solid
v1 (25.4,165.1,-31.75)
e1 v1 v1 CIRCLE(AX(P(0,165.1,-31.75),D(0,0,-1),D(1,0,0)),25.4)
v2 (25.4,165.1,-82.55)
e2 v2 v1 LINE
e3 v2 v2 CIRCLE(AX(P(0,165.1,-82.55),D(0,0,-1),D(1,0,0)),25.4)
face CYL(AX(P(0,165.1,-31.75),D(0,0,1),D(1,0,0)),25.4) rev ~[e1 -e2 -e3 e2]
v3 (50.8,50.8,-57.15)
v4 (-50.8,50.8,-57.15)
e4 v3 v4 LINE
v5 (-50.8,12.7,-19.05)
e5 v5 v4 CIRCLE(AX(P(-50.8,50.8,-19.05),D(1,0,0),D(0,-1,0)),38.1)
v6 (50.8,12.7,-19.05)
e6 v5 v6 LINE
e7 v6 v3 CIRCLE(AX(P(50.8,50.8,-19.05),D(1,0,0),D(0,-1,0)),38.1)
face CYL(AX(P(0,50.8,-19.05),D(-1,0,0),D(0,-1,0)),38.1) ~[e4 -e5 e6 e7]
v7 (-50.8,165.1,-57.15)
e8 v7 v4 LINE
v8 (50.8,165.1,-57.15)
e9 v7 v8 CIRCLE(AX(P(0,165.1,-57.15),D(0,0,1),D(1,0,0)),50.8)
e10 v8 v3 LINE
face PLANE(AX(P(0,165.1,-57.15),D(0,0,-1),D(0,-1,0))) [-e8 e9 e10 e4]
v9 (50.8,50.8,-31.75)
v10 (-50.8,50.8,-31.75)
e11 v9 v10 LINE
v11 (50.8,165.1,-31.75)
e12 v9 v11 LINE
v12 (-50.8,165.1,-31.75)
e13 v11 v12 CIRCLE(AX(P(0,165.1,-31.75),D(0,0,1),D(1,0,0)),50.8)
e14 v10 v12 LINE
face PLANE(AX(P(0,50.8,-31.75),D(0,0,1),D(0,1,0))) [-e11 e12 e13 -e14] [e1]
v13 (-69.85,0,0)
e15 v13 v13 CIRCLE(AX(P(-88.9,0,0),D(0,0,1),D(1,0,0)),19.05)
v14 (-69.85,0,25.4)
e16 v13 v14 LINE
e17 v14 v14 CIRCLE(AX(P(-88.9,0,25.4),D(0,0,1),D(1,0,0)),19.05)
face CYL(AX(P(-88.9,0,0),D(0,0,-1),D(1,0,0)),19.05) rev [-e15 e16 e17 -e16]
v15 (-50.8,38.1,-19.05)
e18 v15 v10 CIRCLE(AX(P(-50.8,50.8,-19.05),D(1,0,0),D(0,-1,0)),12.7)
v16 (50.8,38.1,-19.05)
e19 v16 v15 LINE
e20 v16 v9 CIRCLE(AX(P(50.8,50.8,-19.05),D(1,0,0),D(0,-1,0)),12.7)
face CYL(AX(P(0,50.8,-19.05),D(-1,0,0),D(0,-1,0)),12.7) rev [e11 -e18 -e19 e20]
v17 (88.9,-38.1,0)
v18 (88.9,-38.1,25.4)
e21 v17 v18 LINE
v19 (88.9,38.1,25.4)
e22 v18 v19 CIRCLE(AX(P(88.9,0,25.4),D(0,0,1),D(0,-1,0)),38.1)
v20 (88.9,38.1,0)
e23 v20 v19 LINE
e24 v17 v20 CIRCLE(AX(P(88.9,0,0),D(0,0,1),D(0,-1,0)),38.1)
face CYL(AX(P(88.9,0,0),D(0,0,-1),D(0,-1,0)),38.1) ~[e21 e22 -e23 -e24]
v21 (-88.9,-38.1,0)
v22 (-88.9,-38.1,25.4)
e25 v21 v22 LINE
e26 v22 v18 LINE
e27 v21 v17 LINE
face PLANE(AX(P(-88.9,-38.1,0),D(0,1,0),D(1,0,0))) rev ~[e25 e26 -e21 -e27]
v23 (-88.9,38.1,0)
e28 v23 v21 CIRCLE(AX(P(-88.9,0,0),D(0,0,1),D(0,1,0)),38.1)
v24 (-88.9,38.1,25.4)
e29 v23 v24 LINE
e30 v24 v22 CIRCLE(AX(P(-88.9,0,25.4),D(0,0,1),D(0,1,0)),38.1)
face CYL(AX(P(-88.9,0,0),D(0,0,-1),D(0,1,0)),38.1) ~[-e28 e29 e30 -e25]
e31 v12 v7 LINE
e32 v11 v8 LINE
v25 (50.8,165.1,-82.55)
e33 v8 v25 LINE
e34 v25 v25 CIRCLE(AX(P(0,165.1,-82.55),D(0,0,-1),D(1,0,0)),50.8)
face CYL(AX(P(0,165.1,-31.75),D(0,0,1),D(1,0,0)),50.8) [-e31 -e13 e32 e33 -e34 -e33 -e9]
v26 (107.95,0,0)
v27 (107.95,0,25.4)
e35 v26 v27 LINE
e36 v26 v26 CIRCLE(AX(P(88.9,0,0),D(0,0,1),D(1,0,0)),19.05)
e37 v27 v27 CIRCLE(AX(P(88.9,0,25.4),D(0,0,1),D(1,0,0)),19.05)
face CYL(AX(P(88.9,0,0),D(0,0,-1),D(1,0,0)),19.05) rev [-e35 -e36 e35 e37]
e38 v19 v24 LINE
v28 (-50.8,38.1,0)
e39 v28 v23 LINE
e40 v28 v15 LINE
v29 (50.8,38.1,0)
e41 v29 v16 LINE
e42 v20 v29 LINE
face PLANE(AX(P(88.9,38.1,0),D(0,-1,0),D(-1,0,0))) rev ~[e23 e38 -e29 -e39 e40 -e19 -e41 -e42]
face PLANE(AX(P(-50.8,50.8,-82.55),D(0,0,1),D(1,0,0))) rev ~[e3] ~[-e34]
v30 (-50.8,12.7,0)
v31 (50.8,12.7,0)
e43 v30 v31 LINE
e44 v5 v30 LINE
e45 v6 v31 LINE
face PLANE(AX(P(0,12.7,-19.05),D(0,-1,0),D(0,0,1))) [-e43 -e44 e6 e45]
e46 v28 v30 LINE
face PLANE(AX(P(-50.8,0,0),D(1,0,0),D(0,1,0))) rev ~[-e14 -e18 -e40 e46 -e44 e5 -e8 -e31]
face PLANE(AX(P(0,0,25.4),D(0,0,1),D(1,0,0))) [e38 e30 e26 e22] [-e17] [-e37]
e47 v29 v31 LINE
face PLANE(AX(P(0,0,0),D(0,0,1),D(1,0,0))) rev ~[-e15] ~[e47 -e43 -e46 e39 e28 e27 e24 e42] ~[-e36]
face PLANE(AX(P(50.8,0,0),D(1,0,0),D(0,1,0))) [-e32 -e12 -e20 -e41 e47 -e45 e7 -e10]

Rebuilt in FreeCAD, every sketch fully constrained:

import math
import FreeCAD as App
import Part
import Sketcher
Q = App.Units.Quantity

doc = App.newDocument("Part")
body = doc.addObject("PartDesign::Body", "Body")

sketch1 = body.newObject("Sketcher::SketchObject", "Sketch")
sketch1.AttachmentSupport = (doc.getObject("XY_Plane"), [""])
sketch1.MapMode = "FlatFace"
sketch1.addGeometry(Part.ArcOfCircle(Part.Circle(App.Vector(-89, 0, 0), App.Vector(0, 0, 1), 38), math.radians(90), math.radians(270)), False)
sketch1.addGeometry(Part.LineSegment(App.Vector(-89, -38, 0), App.Vector(89, -38, 0)), False)
sketch1.addGeometry(Part.ArcOfCircle(Part.Circle(App.Vector(89, 0, 0), App.Vector(0, 0, 1), 38), math.radians(-90), math.radians(90)), False)
sketch1.addGeometry(Part.LineSegment(App.Vector(89, 38, 0), App.Vector(-89, 38, 0)), False)
sketch1.addGeometry(Part.Circle(App.Vector(-89, 0, 0), App.Vector(0, 0, 1), 19), False)
sketch1.addGeometry(Part.Circle(App.Vector(89, 0, 0), App.Vector(0, 0, 1), 19), False)
sketch1.addConstraint(Sketcher.Constraint("Tangent", 0, 2, 1, 1))
sketch1.addConstraint(Sketcher.Constraint("Tangent", 1, 2, 2, 1))
sketch1.addConstraint(Sketcher.Constraint("Tangent", 2, 2, 3, 1))
sketch1.addConstraint(Sketcher.Constraint("Tangent", 3, 2, 0, 1))
sketch1.addConstraint(Sketcher.Constraint("Horizontal", 1))
sketch1.addConstraint(Sketcher.Constraint("Horizontal", 3))
sketch1.addConstraint(Sketcher.Constraint("Coincident", 4, 3, 0, 3))
sketch1.addConstraint(Sketcher.Constraint("Coincident", 5, 3, 2, 3))
sketch1.addConstraint(Sketcher.Constraint("Equal", 4, 5))
sketch1.addConstraint(Sketcher.Constraint("Symmetric", 0, 3, 2, 3, -1, 1))
sketch1.addConstraint(Sketcher.Constraint("Diameter", 4, Q("1.5 in")))
sketch1.addConstraint(Sketcher.Constraint("Radius", 0, Q("1.5 in")))
sketch1.addConstraint(Sketcher.Constraint("DistanceX", 1, 1, 1, 2, Q("7 in")))
pad1 = body.newObject("PartDesign::Pad", "Pad")
pad1.Profile = sketch1
pad1.Length = Q("1 in")

sketch2 = body.newObject("Sketcher::SketchObject", "Sketch001")
sketch2.AttachmentSupport = (doc.getObject("YZ_Plane"), [""])
sketch2.MapMode = "FlatFace"
sketch2.addGeometry(Part.LineSegment(App.Vector(38, -19, 0), App.Vector(38, 0, 0)), False)
sketch2.addGeometry(Part.LineSegment(App.Vector(38, 0, 0), App.Vector(13, 0, 0)), False)
sketch2.addGeometry(Part.LineSegment(App.Vector(13, 0, 0), App.Vector(13, -19, 0)), False)
sketch2.addGeometry(Part.ArcOfCircle(Part.Circle(App.Vector(51, -19, 0), App.Vector(0, 0, 1), 38), math.radians(180), math.radians(270)), False)
sketch2.addGeometry(Part.LineSegment(App.Vector(51, -57, 0), App.Vector(165, -57, 0)), False)
sketch2.addGeometry(Part.LineSegment(App.Vector(165, -57, 0), App.Vector(165, -32, 0)), False)
sketch2.addGeometry(Part.LineSegment(App.Vector(165, -32, 0), App.Vector(51, -32, 0)), False)
sketch2.addGeometry(Part.ArcOfCircle(Part.Circle(App.Vector(51, -19, 0), App.Vector(0, 0, 1), 13), math.radians(180), math.radians(270)), False)
sketch2.addConstraint(Sketcher.Constraint("Coincident", 0, 2, 1, 1))
sketch2.addConstraint(Sketcher.Constraint("Coincident", 1, 2, 2, 1))
sketch2.addConstraint(Sketcher.Constraint("Tangent", 2, 2, 3, 1))
sketch2.addConstraint(Sketcher.Constraint("Tangent", 3, 2, 4, 1))
sketch2.addConstraint(Sketcher.Constraint("Coincident", 4, 2, 5, 1))
sketch2.addConstraint(Sketcher.Constraint("Coincident", 5, 2, 6, 1))
sketch2.addConstraint(Sketcher.Constraint("Tangent", 6, 2, 7, 2))
sketch2.addConstraint(Sketcher.Constraint("Tangent", 7, 1, 0, 1))
sketch2.addConstraint(Sketcher.Constraint("Vertical", 0))
sketch2.addConstraint(Sketcher.Constraint("Horizontal", 1))
sketch2.addConstraint(Sketcher.Constraint("Vertical", 2))
sketch2.addConstraint(Sketcher.Constraint("Horizontal", 4))
sketch2.addConstraint(Sketcher.Constraint("Vertical", 5))
sketch2.addConstraint(Sketcher.Constraint("Horizontal", 6))
sketch2.addConstraint(Sketcher.Constraint("Coincident", 7, 3, 3, 3))
sketch2.addConstraint(Sketcher.Constraint("PointOnObject", 0, 2, -1))
sketch2.addConstraint(Sketcher.Constraint("Radius", 3, Q("1.5 in")))
sketch2.addConstraint(Sketcher.Constraint("Radius", 7, Q("0.5 in")))
sketch2.addConstraint(Sketcher.Constraint("DistanceX", 0, 2, 4, 2, Q("5 in")))
sketch2.addConstraint(Sketcher.Constraint("DistanceX", -1, 1, 0, 2, Q("1.5 in")))
sketch2.addConstraint(Sketcher.Constraint("DistanceY", 3, 2, -1, 1, Q("2.25 in")))
pad2 = body.newObject("PartDesign::Pad", "Pad001")
pad2.Profile = sketch2
pad2.Length = Q("4 in")
pad2.Midplane = True

sketch3 = body.newObject("Sketcher::SketchObject", "Sketch002")
sketch3.AttachmentSupport = (doc.getObject("XY_Plane"), [""])
sketch3.MapMode = "FlatFace"
sketch3.AttachmentOffset = App.Placement(App.Vector(0, 0, -1.25 * 25.4), App.Rotation())
sketch3.addGeometry(Part.Circle(App.Vector(0, 165, 0), App.Vector(0, 0, 1), 51), False)
sketch3.addGeometry(Part.Circle(App.Vector(0, 165, 0), App.Vector(0, 0, 1), 25), False)
sketch3.addConstraint(Sketcher.Constraint("Coincident", 1, 3, 0, 3))
sketch3.addConstraint(Sketcher.Constraint("PointOnObject", 0, 3, -2))
sketch3.addConstraint(Sketcher.Constraint("Diameter", 0, Q("4 in")))
sketch3.addConstraint(Sketcher.Constraint("Diameter", 1, Q("2 in")))
sketch3.addConstraint(Sketcher.Constraint("DistanceY", -1, 1, 0, 3, Q("6.5 in")))
pad3 = body.newObject("PartDesign::Pad", "Pad002")
pad3.Profile = sketch3
pad3.Length = Q("2 in")
pad3.Reversed = True

sketch4 = body.newObject("Sketcher::SketchObject", "Sketch003")
sketch4.AttachmentSupport = (doc.getObject("XY_Plane"), [""])
sketch4.MapMode = "FlatFace"
sketch4.AttachmentOffset = App.Placement(App.Vector(0, 0, -1.25 * 25.4), App.Rotation())
sketch4.addGeometry(Part.ArcOfCircle(Part.Circle(App.Vector(0, 165, 0), App.Vector(0, 0, 1), 25), math.radians(180), math.radians(360)), False)
sketch4.addGeometry(Part.LineSegment(App.Vector(25, 165, 0), App.Vector(-25, 165, 0)), False)
sketch4.addConstraint(Sketcher.Constraint("Coincident", 0, 1, 1, 2))
sketch4.addConstraint(Sketcher.Constraint("Coincident", 1, 1, 0, 2))
sketch4.addConstraint(Sketcher.Constraint("Horizontal", 1))
sketch4.addConstraint(Sketcher.Constraint("PointOnObject", 0, 3, -2))
sketch4.addConstraint(Sketcher.Constraint("Radius", 0, Q("1 in")))
sketch4.addConstraint(Sketcher.Constraint("DistanceY", -1, 1, 0, 3, Q("6.5 in")))
sketch4.addConstraint(Sketcher.Constraint("DistanceY", -1, 1, 0, 1, Q("6.5 in")))
pocket1 = body.newObject("PartDesign::Pocket", "Pocket")
pocket1.Profile = sketch4
pocket1.Length = Q("4 in")

doc.recompute()
